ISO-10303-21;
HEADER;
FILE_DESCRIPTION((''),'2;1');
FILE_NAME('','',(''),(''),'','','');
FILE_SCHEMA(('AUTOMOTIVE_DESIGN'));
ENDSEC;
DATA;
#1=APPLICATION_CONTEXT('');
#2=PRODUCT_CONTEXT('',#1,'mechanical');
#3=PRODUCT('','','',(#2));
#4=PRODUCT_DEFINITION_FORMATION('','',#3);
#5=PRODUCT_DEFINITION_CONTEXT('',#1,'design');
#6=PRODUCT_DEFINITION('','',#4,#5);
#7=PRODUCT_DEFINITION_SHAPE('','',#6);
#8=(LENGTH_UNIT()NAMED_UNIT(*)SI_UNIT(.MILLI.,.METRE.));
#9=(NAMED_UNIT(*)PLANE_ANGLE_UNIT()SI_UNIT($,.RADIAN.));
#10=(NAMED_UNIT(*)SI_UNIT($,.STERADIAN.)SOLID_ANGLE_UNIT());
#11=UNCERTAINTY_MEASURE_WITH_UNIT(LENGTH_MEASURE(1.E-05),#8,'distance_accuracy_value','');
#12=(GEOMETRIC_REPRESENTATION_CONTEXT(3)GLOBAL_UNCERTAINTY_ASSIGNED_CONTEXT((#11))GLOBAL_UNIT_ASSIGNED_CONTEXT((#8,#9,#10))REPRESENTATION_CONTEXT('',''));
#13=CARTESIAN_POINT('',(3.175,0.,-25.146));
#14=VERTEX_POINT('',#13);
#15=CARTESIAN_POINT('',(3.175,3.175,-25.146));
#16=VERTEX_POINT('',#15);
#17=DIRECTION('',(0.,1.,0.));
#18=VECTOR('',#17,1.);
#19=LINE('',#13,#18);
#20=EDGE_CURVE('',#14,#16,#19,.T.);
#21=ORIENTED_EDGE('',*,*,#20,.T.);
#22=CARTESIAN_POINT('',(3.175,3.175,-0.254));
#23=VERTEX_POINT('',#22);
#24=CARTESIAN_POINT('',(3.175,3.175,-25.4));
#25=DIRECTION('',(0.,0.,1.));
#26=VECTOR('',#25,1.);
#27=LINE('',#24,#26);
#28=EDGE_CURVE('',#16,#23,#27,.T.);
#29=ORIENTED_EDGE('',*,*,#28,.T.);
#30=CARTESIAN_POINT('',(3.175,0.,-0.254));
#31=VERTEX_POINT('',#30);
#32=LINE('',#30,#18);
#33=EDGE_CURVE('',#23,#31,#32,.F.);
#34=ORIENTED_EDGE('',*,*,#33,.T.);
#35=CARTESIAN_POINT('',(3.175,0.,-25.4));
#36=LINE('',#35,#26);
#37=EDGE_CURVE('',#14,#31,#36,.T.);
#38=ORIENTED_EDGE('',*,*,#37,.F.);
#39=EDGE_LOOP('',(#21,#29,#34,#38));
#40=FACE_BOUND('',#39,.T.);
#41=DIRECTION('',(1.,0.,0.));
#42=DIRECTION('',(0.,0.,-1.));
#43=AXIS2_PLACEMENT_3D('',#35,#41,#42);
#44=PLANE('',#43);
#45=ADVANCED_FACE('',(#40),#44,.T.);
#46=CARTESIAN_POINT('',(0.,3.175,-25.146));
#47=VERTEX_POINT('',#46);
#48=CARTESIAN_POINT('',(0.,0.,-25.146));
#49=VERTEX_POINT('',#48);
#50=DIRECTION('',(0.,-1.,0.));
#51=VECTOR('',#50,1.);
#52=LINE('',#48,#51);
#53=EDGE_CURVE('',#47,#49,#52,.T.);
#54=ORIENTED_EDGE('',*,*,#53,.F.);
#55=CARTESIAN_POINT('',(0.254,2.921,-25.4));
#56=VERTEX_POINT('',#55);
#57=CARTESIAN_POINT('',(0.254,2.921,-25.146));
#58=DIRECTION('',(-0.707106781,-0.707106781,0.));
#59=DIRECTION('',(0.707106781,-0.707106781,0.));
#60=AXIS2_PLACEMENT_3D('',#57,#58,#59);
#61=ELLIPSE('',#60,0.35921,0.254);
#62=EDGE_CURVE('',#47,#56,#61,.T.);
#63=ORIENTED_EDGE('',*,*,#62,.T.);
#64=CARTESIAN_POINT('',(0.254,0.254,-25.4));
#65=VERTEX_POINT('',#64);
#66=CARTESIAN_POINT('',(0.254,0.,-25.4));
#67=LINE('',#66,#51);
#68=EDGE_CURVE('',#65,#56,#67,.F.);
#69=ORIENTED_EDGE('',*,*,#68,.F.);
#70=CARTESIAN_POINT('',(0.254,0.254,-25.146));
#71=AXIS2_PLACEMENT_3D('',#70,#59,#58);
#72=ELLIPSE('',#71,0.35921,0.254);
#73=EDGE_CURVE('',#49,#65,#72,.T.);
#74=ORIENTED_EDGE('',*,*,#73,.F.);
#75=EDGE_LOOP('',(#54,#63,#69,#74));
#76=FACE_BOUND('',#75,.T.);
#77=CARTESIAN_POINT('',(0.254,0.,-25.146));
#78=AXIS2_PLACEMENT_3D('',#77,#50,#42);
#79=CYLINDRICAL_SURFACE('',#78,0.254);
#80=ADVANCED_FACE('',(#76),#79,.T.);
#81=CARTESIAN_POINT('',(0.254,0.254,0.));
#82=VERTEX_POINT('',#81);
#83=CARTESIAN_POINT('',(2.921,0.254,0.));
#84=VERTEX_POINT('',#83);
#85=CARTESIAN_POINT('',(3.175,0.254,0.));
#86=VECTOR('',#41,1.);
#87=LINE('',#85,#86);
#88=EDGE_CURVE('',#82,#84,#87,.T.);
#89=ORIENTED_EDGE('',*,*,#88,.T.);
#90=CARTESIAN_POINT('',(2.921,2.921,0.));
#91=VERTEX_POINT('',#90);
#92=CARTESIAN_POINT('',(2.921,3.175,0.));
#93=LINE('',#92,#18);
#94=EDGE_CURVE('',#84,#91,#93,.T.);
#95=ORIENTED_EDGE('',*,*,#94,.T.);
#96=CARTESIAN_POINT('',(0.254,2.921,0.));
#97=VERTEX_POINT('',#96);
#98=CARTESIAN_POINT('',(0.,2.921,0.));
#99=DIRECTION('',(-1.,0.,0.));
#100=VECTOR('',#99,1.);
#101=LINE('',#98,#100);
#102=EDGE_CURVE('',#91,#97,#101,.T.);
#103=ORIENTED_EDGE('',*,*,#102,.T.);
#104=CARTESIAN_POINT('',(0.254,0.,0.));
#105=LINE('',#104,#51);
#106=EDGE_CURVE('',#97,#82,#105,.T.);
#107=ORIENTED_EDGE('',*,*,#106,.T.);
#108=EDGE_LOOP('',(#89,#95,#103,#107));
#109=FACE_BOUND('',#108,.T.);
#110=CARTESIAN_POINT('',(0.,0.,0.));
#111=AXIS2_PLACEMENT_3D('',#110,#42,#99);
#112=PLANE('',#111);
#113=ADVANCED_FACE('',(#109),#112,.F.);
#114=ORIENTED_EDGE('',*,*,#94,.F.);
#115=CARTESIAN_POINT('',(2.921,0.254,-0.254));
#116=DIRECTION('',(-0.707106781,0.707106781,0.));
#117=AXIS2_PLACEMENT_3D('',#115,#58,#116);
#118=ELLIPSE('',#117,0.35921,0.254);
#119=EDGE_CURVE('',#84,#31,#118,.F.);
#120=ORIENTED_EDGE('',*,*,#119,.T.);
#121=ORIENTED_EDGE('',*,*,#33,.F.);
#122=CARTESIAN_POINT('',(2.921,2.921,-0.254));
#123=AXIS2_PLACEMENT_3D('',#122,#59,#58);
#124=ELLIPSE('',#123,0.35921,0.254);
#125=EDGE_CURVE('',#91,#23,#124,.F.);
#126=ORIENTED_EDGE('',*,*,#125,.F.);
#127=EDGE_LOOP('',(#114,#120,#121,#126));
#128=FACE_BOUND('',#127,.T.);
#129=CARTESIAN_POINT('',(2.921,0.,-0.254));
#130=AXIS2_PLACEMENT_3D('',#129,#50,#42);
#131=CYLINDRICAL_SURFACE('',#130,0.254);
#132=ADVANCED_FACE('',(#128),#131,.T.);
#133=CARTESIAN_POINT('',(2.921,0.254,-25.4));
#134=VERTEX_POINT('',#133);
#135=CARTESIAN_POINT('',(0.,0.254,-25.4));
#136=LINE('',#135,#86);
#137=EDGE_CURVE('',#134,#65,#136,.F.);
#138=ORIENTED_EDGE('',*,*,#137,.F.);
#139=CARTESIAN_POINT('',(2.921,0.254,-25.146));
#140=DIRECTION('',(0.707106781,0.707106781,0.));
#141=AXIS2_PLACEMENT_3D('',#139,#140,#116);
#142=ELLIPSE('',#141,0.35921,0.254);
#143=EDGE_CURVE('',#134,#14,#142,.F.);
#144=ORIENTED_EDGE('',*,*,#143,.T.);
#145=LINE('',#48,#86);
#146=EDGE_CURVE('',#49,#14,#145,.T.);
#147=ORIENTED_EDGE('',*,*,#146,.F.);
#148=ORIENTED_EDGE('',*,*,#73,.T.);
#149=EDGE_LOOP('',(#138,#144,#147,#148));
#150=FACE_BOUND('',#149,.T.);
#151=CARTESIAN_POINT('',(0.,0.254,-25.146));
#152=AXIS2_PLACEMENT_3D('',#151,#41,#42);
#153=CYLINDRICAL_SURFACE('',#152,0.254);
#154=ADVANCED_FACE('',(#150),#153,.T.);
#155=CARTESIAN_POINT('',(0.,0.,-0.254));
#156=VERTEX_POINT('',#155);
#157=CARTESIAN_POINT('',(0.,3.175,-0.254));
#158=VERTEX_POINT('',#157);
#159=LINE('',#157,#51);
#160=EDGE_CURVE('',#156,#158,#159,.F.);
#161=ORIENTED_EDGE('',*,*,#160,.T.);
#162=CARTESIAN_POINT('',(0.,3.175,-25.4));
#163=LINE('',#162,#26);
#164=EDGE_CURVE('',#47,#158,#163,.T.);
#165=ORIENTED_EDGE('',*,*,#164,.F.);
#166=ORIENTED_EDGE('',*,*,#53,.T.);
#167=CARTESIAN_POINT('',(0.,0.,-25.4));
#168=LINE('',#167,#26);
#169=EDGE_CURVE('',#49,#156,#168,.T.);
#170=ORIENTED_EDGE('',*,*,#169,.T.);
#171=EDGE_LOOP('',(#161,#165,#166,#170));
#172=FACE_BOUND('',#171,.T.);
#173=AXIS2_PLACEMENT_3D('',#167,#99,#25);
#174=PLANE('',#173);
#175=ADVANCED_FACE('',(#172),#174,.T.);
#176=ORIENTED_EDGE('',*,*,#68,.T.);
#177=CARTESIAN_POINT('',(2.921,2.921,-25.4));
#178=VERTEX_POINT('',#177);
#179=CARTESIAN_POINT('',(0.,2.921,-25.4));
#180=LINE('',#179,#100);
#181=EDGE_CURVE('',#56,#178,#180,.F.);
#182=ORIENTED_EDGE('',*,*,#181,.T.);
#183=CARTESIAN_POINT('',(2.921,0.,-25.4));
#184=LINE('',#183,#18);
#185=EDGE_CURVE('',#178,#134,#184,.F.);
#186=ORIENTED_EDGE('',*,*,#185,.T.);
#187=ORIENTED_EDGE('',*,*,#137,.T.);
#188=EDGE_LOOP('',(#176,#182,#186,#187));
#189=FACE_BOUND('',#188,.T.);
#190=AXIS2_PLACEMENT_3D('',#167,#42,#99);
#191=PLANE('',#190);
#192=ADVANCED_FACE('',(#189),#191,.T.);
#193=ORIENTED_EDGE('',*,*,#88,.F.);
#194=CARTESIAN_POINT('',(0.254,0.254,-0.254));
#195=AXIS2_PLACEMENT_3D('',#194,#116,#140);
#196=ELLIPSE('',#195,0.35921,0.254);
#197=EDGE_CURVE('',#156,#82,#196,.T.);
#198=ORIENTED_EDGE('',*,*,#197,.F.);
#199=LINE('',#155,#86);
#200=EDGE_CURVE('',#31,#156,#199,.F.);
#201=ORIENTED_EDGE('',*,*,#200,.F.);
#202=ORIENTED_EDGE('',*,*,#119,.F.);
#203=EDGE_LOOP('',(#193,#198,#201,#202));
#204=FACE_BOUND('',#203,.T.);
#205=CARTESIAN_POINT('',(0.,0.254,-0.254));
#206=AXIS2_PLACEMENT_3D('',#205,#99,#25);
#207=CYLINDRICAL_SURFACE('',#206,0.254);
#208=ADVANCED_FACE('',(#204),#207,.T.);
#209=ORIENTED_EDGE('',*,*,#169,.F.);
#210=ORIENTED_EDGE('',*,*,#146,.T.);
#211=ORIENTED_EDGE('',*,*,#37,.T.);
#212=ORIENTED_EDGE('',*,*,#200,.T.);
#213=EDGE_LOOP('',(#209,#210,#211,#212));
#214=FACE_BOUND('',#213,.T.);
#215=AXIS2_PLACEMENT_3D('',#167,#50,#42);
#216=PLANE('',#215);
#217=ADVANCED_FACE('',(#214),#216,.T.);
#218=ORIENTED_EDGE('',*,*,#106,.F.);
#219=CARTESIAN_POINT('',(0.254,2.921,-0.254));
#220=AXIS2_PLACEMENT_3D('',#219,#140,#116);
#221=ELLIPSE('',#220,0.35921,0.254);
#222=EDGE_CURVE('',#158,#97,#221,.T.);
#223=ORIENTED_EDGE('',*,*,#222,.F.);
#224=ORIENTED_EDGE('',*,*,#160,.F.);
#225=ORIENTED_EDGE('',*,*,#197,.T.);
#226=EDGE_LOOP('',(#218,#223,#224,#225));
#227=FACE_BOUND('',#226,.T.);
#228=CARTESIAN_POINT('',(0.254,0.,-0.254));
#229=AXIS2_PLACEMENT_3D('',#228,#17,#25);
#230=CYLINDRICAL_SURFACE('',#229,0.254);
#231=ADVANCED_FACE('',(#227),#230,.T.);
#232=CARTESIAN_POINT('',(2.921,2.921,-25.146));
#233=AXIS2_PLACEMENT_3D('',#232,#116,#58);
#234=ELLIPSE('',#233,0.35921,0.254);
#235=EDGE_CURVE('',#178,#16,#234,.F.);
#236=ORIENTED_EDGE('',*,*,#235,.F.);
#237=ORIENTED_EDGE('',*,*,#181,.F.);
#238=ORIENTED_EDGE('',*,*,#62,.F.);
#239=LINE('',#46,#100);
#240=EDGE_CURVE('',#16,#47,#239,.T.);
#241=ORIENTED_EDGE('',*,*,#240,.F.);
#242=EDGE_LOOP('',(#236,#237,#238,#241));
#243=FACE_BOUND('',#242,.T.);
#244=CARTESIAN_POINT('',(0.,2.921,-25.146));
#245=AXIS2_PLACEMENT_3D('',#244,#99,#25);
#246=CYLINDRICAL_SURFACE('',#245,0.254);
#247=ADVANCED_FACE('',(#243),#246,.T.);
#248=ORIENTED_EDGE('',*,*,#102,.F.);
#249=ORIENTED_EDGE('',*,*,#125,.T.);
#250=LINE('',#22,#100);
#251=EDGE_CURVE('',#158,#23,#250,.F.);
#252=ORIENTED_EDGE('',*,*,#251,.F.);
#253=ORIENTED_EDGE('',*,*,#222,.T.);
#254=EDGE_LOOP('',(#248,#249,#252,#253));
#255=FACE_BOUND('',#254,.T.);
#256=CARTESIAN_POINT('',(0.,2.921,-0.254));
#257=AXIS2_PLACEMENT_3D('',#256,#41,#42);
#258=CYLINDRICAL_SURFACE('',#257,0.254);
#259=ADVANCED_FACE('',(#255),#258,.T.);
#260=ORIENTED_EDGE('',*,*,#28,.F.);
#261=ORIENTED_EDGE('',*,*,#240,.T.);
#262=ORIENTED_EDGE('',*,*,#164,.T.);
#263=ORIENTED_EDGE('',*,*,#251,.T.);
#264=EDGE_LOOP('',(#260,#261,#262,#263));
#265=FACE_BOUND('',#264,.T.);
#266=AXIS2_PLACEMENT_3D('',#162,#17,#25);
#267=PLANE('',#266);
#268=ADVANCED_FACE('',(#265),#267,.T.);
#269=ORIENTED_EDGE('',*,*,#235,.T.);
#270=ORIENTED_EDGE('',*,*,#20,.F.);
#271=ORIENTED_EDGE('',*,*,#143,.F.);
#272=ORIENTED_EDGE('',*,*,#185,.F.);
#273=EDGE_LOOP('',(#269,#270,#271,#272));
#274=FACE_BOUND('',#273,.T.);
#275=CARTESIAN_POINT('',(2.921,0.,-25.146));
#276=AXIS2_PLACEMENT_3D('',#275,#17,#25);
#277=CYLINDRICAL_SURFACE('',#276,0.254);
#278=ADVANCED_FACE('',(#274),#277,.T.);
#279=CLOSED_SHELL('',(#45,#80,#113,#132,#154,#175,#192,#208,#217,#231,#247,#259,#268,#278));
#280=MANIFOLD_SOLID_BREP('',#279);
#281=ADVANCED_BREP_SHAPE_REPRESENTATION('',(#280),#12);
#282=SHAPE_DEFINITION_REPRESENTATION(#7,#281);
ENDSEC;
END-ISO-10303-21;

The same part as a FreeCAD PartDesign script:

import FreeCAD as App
import Part
import Sketcher
from FreeCAD import Vector
Q = App.Units.Quantity


def edges_at(feature, points):
    """Names of the edges that pass closest to the given points."""
    edges = feature.Shape.Edges
    near = lambda p: min(range(len(edges)), key=lambda i: edges[i].distToShape(Part.Vertex(*p))[0])
    return sorted({f"Edge{near(p) + 1}" for p in points})

doc = App.newDocument("Part")
body = doc.addObject("PartDesign::Body", "Body")

# Sketch on XY plane
sketch1 = doc.addObject("Sketcher::SketchObject", "Sketch")
body.addObject(sketch1)
sketch1.AttachmentSupport = (doc.XY_Plane, [""])
sketch1.MapMode = "FlatFace"
sketch1.addGeometry(Part.LineSegment(Vector(0, 3.2, 0), Vector(0, 0, 0)), False)
sketch1.addGeometry(Part.LineSegment(Vector(0, 0, 0), Vector(3.2, 0, 0)), False)
sketch1.addGeometry(Part.LineSegment(Vector(3.2, 0, 0), Vector(3.2, 3.2, 0)), False)
sketch1.addGeometry(Part.LineSegment(Vector(3.2, 3.2, 0), Vector(0, 3.2, 0)), False)
sketch1.addConstraint(Sketcher.Constraint("Coincident", 0, 2, 1, 1))
sketch1.addConstraint(Sketcher.Constraint("Coincident", 1, 2, 2, 1))
sketch1.addConstraint(Sketcher.Constraint("Coincident", 2, 2, 3, 1))
sketch1.addConstraint(Sketcher.Constraint("Coincident", 3, 2, 0, 1))
sketch1.addConstraint(Sketcher.Constraint("Vertical", 0))
sketch1.addConstraint(Sketcher.Constraint("Horizontal", 1))
sketch1.addConstraint(Sketcher.Constraint("Vertical", 2))
sketch1.addConstraint(Sketcher.Constraint("Horizontal", 3))
sketch1.addConstraint(Sketcher.Constraint("Coincident", 0, 2, -1, 1))
sketch1.addConstraint(Sketcher.Constraint("Equal", 3, 0))
sketch1.addConstraint(Sketcher.Constraint("DistanceX", 1, 1, 1, 2, Q("0.125 in")))
pad1 = doc.addObject("PartDesign::Pad", "Pad")
body.addObject(pad1)
pad1.Profile = sketch1
pad1.Length = Q("1 in")
pad1.Reversed = True
doc.recompute()

fillet = doc.addObject("PartDesign::Fillet", "Fillet")
body.addObject(fillet)
fillet.Base = (pad1, edges_at(pad1, [
    (1.587, 3.175, 0),
    (3.175, 1.587, 0),
    (1.587, 0, 0),
    (0, 1.587, 0),
]))
fillet.Radius = Q("0.01 in")
doc.recompute()

fillet2 = doc.addObject("PartDesign::Fillet", "Fillet001")
body.addObject(fillet2)
fillet2.Base = (fillet, edges_at(fillet, [
    (3.175, 1.587, -25.4),
    (1.587, 3.175, -25.4),
    (0, 1.587, -25.4),
    (1.587, 0, -25.4),
]))
fillet2.Radius = Q("0.01 in")

doc.recompute()
